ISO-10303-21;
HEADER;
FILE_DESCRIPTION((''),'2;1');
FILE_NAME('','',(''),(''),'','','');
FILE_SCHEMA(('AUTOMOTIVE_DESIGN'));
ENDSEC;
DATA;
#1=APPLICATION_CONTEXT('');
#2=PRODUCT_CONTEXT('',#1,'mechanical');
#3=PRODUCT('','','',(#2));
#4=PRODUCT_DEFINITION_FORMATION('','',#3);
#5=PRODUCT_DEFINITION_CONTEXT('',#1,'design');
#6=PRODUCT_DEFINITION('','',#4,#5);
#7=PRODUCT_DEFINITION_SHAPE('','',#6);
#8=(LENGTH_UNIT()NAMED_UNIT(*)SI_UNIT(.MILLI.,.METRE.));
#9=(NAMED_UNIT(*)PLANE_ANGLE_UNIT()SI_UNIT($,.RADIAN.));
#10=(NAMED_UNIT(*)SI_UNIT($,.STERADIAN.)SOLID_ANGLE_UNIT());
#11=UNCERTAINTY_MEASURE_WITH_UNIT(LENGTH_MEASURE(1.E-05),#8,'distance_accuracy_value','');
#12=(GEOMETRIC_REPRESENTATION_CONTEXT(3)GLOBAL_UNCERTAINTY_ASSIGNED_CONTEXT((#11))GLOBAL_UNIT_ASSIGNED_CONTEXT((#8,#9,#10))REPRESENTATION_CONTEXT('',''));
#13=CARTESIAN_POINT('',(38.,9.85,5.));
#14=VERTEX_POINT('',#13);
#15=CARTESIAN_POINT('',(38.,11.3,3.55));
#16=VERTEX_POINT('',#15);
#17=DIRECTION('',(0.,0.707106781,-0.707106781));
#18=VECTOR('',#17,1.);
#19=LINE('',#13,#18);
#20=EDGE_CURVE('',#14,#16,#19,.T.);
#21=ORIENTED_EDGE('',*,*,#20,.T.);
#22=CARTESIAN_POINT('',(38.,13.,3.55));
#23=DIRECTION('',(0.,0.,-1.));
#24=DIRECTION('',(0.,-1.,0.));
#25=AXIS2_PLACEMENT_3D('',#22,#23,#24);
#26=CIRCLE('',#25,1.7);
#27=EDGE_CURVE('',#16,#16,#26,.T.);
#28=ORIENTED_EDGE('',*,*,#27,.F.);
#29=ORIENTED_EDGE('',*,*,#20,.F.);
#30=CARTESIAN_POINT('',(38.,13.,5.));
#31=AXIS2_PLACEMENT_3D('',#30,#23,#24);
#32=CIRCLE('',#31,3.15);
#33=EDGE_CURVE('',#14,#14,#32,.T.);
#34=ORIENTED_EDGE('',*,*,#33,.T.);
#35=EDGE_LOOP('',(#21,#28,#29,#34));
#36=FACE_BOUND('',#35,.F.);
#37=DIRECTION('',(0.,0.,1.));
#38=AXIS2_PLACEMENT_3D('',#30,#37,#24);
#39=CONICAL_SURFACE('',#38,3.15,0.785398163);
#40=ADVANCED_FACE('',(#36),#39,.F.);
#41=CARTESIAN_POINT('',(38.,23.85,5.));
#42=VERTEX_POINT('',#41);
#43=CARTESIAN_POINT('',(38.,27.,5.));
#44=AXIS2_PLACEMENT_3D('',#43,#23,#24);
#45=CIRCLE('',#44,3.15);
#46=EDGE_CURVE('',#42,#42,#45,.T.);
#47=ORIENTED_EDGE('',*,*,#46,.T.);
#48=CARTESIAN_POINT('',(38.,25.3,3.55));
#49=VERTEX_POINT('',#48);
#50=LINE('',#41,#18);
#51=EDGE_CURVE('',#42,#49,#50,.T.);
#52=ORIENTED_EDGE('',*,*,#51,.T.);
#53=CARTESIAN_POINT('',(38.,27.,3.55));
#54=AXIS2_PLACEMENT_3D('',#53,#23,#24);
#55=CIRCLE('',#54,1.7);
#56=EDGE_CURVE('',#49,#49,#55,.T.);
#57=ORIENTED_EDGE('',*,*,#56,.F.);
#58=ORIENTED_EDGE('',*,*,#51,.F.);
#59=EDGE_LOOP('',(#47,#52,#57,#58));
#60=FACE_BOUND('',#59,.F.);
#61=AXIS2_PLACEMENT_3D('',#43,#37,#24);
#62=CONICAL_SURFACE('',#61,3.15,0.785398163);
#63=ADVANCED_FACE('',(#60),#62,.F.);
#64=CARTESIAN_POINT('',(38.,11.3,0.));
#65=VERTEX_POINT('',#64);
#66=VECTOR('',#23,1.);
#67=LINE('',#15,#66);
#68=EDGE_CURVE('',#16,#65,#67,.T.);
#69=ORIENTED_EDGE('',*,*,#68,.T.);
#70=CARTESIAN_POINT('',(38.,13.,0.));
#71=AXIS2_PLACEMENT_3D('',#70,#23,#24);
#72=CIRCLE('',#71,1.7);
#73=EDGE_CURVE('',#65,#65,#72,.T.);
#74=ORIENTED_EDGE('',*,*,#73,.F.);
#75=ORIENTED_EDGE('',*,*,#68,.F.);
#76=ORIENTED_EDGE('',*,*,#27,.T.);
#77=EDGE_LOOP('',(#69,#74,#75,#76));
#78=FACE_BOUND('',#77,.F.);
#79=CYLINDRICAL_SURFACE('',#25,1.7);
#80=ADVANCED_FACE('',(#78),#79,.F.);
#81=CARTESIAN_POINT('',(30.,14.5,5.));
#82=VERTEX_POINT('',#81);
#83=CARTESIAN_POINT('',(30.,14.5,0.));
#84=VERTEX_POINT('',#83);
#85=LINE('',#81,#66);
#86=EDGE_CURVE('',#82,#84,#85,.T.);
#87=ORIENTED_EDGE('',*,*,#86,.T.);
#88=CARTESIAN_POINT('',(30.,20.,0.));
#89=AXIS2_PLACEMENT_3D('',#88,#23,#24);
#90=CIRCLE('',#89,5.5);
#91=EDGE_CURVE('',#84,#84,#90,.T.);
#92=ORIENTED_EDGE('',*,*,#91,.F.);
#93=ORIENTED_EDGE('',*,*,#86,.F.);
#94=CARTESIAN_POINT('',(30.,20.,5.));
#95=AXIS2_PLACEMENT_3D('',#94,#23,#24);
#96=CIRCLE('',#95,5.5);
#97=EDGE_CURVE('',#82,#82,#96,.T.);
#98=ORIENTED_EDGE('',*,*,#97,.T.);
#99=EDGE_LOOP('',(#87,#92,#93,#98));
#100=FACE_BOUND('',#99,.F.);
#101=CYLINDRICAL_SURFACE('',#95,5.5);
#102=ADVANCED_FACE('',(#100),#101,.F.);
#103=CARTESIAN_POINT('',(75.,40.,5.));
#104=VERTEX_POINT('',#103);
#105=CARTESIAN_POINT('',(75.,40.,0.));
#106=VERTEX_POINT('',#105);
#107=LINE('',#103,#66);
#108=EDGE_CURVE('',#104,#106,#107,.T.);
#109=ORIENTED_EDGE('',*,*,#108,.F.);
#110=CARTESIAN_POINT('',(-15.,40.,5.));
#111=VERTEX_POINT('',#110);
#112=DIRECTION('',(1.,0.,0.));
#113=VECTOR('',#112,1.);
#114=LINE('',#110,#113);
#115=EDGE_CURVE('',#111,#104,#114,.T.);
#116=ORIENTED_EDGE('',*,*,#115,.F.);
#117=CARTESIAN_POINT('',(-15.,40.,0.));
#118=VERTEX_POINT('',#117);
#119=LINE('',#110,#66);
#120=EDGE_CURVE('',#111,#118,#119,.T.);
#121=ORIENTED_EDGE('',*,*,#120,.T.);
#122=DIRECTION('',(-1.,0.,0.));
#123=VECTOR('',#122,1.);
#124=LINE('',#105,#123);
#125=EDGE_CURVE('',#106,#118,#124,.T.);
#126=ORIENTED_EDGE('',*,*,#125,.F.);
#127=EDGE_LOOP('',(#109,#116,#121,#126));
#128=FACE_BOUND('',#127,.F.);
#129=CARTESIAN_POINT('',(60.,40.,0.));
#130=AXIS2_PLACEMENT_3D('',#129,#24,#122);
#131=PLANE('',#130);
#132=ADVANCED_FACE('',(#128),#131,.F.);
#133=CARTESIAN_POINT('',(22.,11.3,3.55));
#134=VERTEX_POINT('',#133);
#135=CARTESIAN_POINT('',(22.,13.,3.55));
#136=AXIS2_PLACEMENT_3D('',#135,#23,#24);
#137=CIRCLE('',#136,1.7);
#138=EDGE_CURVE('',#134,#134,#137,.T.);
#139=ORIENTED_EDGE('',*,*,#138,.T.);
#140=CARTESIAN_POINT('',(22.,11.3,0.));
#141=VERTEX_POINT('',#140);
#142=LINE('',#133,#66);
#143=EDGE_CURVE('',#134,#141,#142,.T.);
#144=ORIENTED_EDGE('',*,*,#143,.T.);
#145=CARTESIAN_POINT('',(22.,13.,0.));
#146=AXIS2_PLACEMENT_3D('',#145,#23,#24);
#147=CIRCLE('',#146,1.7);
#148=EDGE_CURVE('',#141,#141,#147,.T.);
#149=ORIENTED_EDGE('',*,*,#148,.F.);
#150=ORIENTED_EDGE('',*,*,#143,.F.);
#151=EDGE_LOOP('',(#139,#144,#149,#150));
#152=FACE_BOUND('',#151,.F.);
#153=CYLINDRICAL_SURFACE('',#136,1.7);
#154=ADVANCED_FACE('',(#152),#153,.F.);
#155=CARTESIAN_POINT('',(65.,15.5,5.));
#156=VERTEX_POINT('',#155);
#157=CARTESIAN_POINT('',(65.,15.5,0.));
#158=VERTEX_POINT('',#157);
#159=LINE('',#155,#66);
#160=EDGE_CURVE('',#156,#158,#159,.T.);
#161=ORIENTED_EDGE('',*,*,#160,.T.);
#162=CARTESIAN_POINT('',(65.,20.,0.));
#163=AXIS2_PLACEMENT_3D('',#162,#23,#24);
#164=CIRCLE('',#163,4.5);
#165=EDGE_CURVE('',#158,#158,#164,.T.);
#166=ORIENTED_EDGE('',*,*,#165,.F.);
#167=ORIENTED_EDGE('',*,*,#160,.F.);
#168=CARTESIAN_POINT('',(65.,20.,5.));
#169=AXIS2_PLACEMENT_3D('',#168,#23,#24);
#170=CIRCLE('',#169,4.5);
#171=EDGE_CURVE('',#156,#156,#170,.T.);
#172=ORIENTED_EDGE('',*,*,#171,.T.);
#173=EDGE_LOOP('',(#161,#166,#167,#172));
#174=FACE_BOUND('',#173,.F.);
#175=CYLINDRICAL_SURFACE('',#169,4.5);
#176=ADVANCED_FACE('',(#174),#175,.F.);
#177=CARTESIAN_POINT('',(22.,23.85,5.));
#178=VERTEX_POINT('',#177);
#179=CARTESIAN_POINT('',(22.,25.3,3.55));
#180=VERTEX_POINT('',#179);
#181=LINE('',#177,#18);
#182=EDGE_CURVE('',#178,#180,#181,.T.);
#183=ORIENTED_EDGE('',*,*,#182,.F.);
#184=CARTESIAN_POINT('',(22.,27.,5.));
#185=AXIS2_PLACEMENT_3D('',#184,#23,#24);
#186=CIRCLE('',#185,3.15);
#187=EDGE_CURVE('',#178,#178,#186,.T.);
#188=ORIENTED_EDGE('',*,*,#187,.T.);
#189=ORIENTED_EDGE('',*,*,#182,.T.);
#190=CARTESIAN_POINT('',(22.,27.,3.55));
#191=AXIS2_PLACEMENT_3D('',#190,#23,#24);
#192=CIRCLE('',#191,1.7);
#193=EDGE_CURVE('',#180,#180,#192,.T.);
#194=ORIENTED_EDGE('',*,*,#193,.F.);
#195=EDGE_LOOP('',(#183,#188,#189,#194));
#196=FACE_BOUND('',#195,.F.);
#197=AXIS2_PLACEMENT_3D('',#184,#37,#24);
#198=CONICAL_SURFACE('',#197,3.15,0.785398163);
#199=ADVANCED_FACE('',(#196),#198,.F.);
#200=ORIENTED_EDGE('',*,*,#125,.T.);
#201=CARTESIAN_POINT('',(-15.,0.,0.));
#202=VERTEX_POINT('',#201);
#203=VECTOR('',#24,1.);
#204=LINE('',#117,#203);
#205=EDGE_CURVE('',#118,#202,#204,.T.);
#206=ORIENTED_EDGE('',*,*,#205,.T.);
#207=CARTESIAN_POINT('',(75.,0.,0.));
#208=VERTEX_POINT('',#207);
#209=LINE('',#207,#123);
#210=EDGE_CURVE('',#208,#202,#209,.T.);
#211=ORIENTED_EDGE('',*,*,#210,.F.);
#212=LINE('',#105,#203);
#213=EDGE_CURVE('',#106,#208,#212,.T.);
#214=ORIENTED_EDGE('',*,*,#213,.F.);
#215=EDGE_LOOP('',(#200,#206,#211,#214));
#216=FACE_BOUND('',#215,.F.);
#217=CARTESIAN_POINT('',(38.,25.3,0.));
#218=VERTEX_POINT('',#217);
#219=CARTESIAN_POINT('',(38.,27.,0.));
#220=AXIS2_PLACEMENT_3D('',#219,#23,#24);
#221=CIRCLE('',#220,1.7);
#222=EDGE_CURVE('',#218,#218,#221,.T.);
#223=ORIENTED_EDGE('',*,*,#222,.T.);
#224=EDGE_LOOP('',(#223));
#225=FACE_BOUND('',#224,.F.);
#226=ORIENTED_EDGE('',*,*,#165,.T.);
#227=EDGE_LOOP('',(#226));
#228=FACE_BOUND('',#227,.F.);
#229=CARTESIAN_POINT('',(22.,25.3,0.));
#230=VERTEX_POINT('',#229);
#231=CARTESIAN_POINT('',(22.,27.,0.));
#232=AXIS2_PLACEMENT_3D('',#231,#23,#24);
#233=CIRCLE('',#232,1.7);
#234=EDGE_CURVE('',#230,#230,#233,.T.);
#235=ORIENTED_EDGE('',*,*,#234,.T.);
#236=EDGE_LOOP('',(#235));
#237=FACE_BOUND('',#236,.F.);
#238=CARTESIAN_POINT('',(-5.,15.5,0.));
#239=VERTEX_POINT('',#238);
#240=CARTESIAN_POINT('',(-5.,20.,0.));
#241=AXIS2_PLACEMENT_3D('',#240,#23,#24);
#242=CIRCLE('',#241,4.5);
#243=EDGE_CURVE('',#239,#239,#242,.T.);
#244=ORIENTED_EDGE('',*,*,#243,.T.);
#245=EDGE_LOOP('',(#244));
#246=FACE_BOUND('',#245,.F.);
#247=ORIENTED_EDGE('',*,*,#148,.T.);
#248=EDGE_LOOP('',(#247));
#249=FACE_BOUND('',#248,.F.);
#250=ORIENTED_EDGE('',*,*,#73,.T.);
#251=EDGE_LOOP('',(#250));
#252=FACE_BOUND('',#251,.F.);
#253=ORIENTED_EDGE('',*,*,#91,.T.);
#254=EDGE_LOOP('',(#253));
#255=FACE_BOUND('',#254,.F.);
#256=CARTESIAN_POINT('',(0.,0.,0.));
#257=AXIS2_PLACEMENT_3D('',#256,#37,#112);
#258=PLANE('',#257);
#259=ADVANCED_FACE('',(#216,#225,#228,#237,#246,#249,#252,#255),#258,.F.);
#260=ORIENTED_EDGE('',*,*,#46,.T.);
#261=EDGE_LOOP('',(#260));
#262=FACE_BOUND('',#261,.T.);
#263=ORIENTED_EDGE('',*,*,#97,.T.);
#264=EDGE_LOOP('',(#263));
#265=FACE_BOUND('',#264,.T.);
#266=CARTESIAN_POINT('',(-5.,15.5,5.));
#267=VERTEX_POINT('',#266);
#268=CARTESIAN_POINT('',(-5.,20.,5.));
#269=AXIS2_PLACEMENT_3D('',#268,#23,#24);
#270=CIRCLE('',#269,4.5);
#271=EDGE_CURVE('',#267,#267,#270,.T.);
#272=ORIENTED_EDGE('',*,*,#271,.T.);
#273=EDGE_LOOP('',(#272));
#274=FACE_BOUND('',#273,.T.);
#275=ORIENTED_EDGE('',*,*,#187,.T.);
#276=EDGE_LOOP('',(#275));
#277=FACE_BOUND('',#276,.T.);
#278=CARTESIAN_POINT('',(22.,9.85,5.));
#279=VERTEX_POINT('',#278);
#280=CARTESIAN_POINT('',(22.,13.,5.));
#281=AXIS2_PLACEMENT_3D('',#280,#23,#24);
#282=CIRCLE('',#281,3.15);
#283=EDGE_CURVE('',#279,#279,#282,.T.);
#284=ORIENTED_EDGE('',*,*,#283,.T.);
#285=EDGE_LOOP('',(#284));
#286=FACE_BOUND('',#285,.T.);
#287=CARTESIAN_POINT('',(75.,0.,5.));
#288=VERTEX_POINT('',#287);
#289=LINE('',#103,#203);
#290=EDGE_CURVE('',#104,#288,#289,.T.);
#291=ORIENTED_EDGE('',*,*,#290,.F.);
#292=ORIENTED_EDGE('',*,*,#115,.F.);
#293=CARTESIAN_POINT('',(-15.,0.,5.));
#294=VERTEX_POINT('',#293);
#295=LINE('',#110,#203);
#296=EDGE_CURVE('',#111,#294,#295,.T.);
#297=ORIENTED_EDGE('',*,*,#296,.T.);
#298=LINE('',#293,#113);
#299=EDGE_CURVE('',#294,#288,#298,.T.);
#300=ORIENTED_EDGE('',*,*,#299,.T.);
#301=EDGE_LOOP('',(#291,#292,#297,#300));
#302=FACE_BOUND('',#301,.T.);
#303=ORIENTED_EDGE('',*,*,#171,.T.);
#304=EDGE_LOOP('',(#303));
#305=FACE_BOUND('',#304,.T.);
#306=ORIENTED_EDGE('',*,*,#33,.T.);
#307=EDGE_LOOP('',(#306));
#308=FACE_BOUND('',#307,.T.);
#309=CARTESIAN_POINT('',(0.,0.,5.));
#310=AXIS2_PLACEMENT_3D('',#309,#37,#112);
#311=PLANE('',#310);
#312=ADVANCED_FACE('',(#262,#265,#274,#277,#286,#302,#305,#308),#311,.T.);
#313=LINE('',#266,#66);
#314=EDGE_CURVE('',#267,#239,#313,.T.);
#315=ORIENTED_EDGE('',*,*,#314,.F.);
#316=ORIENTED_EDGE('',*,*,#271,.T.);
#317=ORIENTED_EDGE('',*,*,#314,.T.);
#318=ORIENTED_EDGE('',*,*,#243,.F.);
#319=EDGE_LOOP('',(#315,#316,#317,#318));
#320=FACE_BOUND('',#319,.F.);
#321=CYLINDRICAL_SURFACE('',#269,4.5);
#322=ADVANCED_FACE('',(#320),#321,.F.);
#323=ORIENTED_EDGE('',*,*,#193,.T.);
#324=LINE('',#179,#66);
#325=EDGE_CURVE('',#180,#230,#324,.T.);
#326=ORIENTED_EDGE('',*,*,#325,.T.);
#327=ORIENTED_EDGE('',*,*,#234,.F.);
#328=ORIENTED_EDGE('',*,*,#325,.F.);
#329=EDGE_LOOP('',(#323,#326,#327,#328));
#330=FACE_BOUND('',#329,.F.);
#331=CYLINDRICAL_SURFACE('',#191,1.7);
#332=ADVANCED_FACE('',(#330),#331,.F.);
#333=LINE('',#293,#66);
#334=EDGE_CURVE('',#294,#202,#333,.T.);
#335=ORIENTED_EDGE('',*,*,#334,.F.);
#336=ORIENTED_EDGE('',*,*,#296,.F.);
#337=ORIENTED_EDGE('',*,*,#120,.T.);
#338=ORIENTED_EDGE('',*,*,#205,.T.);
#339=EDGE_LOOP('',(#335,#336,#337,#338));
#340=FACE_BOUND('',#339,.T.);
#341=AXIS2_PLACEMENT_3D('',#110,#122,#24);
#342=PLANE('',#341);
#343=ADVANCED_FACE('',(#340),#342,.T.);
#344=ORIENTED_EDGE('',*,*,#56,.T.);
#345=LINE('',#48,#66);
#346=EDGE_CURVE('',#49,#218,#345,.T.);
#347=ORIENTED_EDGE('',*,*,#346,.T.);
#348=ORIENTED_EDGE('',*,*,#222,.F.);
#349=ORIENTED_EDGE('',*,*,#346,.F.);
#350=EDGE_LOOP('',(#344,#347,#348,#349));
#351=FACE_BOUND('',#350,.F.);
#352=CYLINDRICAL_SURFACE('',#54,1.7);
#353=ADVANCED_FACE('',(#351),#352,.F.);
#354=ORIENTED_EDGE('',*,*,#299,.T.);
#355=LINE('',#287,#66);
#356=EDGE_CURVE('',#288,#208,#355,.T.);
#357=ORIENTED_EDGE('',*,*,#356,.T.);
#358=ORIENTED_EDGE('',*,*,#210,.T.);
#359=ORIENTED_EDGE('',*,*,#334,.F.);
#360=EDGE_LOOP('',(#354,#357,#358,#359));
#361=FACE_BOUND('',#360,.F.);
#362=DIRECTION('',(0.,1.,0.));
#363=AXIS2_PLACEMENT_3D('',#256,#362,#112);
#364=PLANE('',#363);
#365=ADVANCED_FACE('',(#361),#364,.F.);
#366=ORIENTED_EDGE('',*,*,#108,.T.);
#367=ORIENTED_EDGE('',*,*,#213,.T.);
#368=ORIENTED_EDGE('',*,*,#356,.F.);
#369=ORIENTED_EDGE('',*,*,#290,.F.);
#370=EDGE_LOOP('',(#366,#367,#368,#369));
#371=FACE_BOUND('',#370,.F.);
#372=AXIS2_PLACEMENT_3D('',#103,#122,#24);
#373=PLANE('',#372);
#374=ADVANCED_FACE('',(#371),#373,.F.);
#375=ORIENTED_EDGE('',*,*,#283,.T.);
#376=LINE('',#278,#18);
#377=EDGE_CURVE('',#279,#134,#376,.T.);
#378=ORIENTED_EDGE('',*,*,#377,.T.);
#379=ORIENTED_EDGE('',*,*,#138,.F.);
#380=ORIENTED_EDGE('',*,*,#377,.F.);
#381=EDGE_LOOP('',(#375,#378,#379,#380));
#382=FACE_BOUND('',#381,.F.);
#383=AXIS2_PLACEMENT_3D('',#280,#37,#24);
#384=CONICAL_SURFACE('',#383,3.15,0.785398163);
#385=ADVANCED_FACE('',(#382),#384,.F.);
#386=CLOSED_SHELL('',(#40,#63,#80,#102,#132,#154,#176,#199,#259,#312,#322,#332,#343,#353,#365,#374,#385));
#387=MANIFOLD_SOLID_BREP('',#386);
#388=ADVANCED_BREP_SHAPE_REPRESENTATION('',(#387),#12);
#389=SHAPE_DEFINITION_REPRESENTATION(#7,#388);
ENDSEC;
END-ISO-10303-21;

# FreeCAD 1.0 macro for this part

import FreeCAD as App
import Part
import Sketcher
from FreeCAD import Vector


def add_polygon(sketch, points):
    """Adds a closed chain of lines whose ends are joined by coincident constraints."""
    first, n = sketch.GeometryCount, len(points)
    for a, b in zip(points, points[1:] + points[:1]):
        sketch.addGeometry(Part.LineSegment(App.Vector(*a, 0), App.Vector(*b, 0)), False)
    for i in range(n):
        sketch.addConstraint(Sketcher.Constraint("Coincident", first + i, 2, first + (i + 1) % n, 1))

doc = App.newDocument("Part")
body = doc.addObject("PartDesign::Body", "Body")

# Sketch on XY plane
sketch1 = body.newObject("Sketcher::SketchObject", "Sketch")
sketch1.AttachmentSupport = (doc.getObject("XY_Plane"), [""])
sketch1.MapMode = "FlatFace"
add_polygon(sketch1, [(0, 40), (0, 0), (60, 0), (60, 40)])  # lines 0-3
sketch1.addConstraint(Sketcher.Constraint("Vertical", 0))
sketch1.addConstraint(Sketcher.Constraint("Horizontal", 1))
sketch1.addConstraint(Sketcher.Constraint("Vertical", 2))
sketch1.addConstraint(Sketcher.Constraint("Horizontal", 3))
sketch1.addConstraint(Sketcher.Constraint("Coincident", 0, 2, -1, 1))
sketch1.addConstraint(Sketcher.Constraint("DistanceX", 1, 1, 1, 2, 60.0))
sketch1.addConstraint(Sketcher.Constraint("DistanceY", 0, 2, 0, 1, 40.0))
pad1 = body.newObject("PartDesign::Pad", "Pad")
pad1.Profile = sketch1
pad1.Length = 5

# Sketch on XY plane
sketch2 = body.newObject("Sketcher::SketchObject", "Sketch001")
sketch2.AttachmentSupport = (doc.getObject("XY_Plane"), [""])
sketch2.MapMode = "FlatFace"
sketch2.AttachmentOffset = App.Placement(Vector(0, 0, 5), App.Rotation())
sketch2.addGeometry(Part.Circle(Vector(30, 20, 0), Vector(0, 0, 1), 6), False)
sketch2.addConstraint(Sketcher.Constraint("Diameter", 0, 11.0))
sketch2.addConstraint(Sketcher.Constraint("DistanceX", -1, 1, 0, 3, 30.0))
sketch2.addConstraint(Sketcher.Constraint("DistanceY", -1, 1, 0, 3, 20.0))
doc.recompute()
hole = body.newObject("PartDesign::Hole", "Hole")
hole.Profile = sketch2
hole.ThreadType = "None"
hole.Diameter = 11
hole.DepthType = "ThroughAll"

# Sketch on XY plane
sketch3 = body.newObject("Sketcher::SketchObject", "Sketch002")
sketch3.AttachmentSupport = (doc.getObject("XY_Plane"), [""])
sketch3.MapMode = "FlatFace"
sketch3.AttachmentOffset = App.Placement(Vector(0, 0, 5), App.Rotation())
add_polygon(sketch3, [(0, 0), (0, 40), (-15, 40), (-15, 0)])  # lines 0-3
add_polygon(sketch3, [(75, 40), (60, 40), (60, 0), (75, 0)])  # lines 4-7
sketch3.addConstraint(Sketcher.Constraint("Vertical", 0))
sketch3.addConstraint(Sketcher.Constraint("Horizontal", 1))
sketch3.addConstraint(Sketcher.Constraint("Vertical", 2))
sketch3.addConstraint(Sketcher.Constraint("Horizontal", 3))
sketch3.addConstraint(Sketcher.Constraint("Horizontal", 4))
sketch3.addConstraint(Sketcher.Constraint("Vertical", 5))
sketch3.addConstraint(Sketcher.Constraint("Horizontal", 6))
sketch3.addConstraint(Sketcher.Constraint("Vertical", 7))
sketch3.addConstraint(Sketcher.Constraint("Coincident", 3, 2, -1, 1))
sketch3.addConstraint(Sketcher.Constraint("PointOnObject", 5, 2, -1))
sketch3.addConstraint(Sketcher.Constraint("Horizontal", 1, 2, 4, 2))
sketch3.addConstraint(Sketcher.Constraint("Equal", 3, 4))
sketch3.addConstraint(Sketcher.Constraint("DistanceX", 1, 2, 1, 1, 15.0))
sketch3.addConstraint(Sketcher.Constraint("DistanceY", 0, 1, 0, 2, 40.0))
sketch3.addConstraint(Sketcher.Constraint("DistanceX", -1, 1, 4, 2, 60.0))
pad2 = body.newObject("PartDesign::Pad", "Pad001")
pad2.Profile = sketch3
pad2.Length = 5
pad2.Reversed = True

# Sketch on XY plane
sketch4 = body.newObject("Sketcher::SketchObject", "Sketch003")
sketch4.AttachmentSupport = (doc.getObject("XY_Plane"), [""])
sketch4.MapMode = "FlatFace"
sketch4.AttachmentOffset = App.Placement(Vector(0, 0, 5), App.Rotation())
sketch4.addGeometry(Part.Circle(Vector(-5, 20, 0), Vector(0, 0, 1), 4.5), False)
sketch4.addGeometry(Part.Circle(Vector(65, 20, 0), Vector(0, 0, 1), 4.5), False)
sketch4.addConstraint(Sketcher.Constraint("Equal", 0, 1))
sketch4.addConstraint(Sketcher.Constraint("Horizontal", 0, 3, 1, 3))
sketch4.addConstraint(Sketcher.Constraint("Diameter", 0, 9.0))
sketch4.addConstraint(Sketcher.Constraint("DistanceX", 0, 3, -1, 1, 5.0))
sketch4.addConstraint(Sketcher.Constraint("DistanceY", -1, 1, 0, 3, 20.0))
sketch4.addConstraint(Sketcher.Constraint("DistanceX", -1, 1, 1, 3, 65.0))
doc.recompute()
hole2 = body.newObject("PartDesign::Hole", "Hole001")
hole2.Profile = sketch4
hole2.ThreadType = "None"
hole2.Diameter = 9
hole2.DepthType = "ThroughAll"

# Sketch on XY plane
sketch5 = body.newObject("Sketcher::SketchObject", "Sketch004")
sketch5.AttachmentSupport = (doc.getObject("XY_Plane"), [""])
sketch5.MapMode = "FlatFace"
sketch5.AttachmentOffset = App.Placement(Vector(0, 0, 5), App.Rotation())
sketch5.addGeometry(Part.Circle(Vector(22, 13, 0), Vector(0, 0, 1), 1.7), False)
sketch5.addGeometry(Part.Circle(Vector(22, 27, 0), Vector(0, 0, 1), 1.7), False)
sketch5.addGeometry(Part.Circle(Vector(38, 13, 0), Vector(0, 0, 1), 1.7), False)
sketch5.addGeometry(Part.Circle(Vector(38, 27, 0), Vector(0, 0, 1), 1.7), False)
sketch5.addConstraint(Sketcher.Constraint("Equal", 0, 1))
sketch5.addConstraint(Sketcher.Constraint("Equal", 1, 2))
sketch5.addConstraint(Sketcher.Constraint("Equal", 2, 3))
sketch5.addConstraint(Sketcher.Constraint("Horizontal", 0, 3, 2, 3))
sketch5.addConstraint(Sketcher.Constraint("Horizontal", 1, 3, 3, 3))
sketch5.addConstraint(Sketcher.Constraint("Vertical", 0, 3, 1, 3))
sketch5.addConstraint(Sketcher.Constraint("Vertical", 2, 3, 3, 3))
sketch5.addConstraint(Sketcher.Constraint("Diameter", 0, 3.4))
sketch5.addConstraint(Sketcher.Constraint("DistanceX", -1, 1, 0, 3, 22.0))
sketch5.addConstraint(Sketcher.Constraint("DistanceY", -1, 1, 0, 3, 13.0))
sketch5.addConstraint(Sketcher.Constraint("DistanceY", -1, 1, 1, 3, 27.0))
sketch5.addConstraint(Sketcher.Constraint("DistanceX", -1, 1, 2, 3, 38.0))
doc.recompute()
hole3 = body.newObject("PartDesign::Hole", "Hole002")
hole3.Profile = sketch5
hole3.ThreadType = "None"
hole3.Diameter = 3.4
hole3.DepthType = "ThroughAll"
hole3.HoleCutType = "Countersink"
hole3.HoleCutDiameter = 6.3
hole3.HoleCutCountersinkAngle = 90

doc.recompute()
